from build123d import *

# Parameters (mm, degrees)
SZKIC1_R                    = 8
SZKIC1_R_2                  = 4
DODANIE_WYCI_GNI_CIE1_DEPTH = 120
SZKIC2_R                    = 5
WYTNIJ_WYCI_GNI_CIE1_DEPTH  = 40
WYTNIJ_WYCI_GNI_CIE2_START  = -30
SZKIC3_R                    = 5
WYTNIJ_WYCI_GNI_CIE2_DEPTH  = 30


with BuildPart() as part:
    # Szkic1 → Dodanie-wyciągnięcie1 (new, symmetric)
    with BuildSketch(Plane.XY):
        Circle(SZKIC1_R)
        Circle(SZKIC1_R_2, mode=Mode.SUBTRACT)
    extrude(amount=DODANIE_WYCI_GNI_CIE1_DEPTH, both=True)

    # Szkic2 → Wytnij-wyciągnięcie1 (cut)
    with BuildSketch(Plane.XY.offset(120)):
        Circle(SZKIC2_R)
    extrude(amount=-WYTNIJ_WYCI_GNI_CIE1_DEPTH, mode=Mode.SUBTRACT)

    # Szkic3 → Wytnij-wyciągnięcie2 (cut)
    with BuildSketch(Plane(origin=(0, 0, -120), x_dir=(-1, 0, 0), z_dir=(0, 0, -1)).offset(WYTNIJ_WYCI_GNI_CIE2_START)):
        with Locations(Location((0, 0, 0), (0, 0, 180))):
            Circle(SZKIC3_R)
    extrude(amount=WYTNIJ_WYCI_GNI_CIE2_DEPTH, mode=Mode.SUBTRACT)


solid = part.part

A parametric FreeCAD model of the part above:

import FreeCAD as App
import Part
import Sketcher
Q = App.Units.Quantity

doc = App.newDocument("Part")
body = doc.addObject("PartDesign::Body", "Body")

sketch1 = body.newObject("Sketcher::SketchObject", "Sketch")
sketch1.AttachmentSupport = (doc.getObject("XY_Plane"), [""])
sketch1.MapMode = "FlatFace"
sketch1.addGeometry([
    Part.Circle(App.Vector(0, 0, 0), App.Vector(0, 0, 1), 8),
    Part.Circle(App.Vector(0, 0, 0), App.Vector(0, 0, 1), 4),
], False)
sketch1.addConstraint([
    Sketcher.Constraint("Coincident", 0, 3, -1, 1),
    Sketcher.Constraint("Coincident", 1, 3, -1, 1),
    Sketcher.Constraint("Diameter", 0, Q("16 mm")),
    Sketcher.Constraint("Diameter", 1, Q("8 mm")),
])
pad1 = body.newObject("PartDesign::Pad", "Pad")
pad1.Profile = sketch1
pad1.Length = 240
pad1.Midplane = True

sketch2 = body.newObject("Sketcher::SketchObject", "Sketch001")
sketch2.AttachmentSupport = (doc.getObject("XY_Plane"), [""])
sketch2.MapMode = "FlatFace"
sketch2.AttachmentOffset = App.Placement(App.Vector(0, 0, 120), App.Rotation())
sketch2.addGeometry(Part.Circle(App.Vector(0, 0, 0), App.Vector(0, 0, 1), 5), False)
sketch2.addConstraint([
    Sketcher.Constraint("Coincident", 0, 3, -1, 1),
    Sketcher.Constraint("Diameter", 0, Q("10 mm")),
])
pocket1 = body.newObject("PartDesign::Pocket", "Pocket")
pocket1.Profile = sketch2
pocket1.Length = 40

sketch3 = body.newObject("Sketcher::SketchObject", "Sketch002")
sketch3.AttachmentSupport = (doc.getObject("XY_Plane"), [""])
sketch3.MapMode = "FlatFace"
sketch3.AttachmentOffset = App.Placement(App.Vector(0, 0, -90), App.Rotation())
sketch3.addGeometry(Part.Circle(App.Vector(0, 0, 0), App.Vector(0, 0, 1), 5), False)
sketch3.addConstraint([
    Sketcher.Constraint("Coincident", 0, 3, -1, 1),
    Sketcher.Constraint("Diameter", 0, Q("10 mm")),
])
pocket2 = body.newObject("PartDesign::Pocket", "Pocket001")
pocket2.Profile = sketch3
pocket2.Length = 30

doc.recompute()
